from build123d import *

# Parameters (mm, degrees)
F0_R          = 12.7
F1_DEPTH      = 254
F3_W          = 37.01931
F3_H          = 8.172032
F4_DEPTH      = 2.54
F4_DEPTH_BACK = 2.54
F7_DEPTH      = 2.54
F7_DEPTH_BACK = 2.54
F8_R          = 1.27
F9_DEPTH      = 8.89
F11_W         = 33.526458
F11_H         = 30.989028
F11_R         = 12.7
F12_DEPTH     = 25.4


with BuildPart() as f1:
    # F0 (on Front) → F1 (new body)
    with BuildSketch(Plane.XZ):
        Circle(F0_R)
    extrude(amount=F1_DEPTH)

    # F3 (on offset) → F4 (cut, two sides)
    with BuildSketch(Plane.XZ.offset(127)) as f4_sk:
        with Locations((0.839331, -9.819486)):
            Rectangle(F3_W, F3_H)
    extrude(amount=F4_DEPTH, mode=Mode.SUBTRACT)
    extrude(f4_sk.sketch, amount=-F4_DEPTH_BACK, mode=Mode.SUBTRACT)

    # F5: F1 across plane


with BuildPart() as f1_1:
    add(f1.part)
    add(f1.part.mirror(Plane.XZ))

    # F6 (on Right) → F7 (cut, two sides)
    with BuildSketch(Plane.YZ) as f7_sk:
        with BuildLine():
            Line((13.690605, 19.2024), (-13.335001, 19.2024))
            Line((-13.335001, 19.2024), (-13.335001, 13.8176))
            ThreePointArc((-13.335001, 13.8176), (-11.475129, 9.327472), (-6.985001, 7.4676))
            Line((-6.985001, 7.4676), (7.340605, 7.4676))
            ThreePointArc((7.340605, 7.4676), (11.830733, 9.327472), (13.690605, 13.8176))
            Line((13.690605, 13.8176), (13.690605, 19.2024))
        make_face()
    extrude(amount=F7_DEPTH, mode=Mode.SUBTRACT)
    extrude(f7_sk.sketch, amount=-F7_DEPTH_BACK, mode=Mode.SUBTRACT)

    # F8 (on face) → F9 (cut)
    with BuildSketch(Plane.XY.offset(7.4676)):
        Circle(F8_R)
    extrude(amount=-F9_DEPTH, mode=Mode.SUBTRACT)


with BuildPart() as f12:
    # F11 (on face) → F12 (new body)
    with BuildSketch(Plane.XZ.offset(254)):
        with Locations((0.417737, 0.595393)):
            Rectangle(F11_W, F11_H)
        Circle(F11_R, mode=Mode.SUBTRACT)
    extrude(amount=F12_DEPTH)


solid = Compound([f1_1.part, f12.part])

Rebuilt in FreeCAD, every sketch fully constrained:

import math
import FreeCAD as App
import Part
import Sketcher
from FreeCAD import Vector
Q = App.Units.Quantity


def add_polygon(sketch, points):
    """Adds a closed chain of lines whose ends are joined by coincident constraints."""
    first, n = sketch.GeometryCount, len(points)
    for a, b in zip(points, points[1:] + points[:1]):
        sketch.addGeometry(Part.LineSegment(App.Vector(*a, 0), App.Vector(*b, 0)), False)
    for i in range(n):
        sketch.addConstraint(Sketcher.Constraint("Coincident", first + i, 2, first + (i + 1) % n, 1))

doc = App.newDocument("Part")
params = doc.addObject("Spreadsheet::Sheet", "Params")
for row, (alias, value) in enumerate([
    ("sketch1_diameter", "1 in"),
    ("pad1_length", "10 in"),
    ("pocket1_length", "0.1 in"),
    ("pocket1_length2", "0.1 in"),
    ("sketch3_radius", "0.25 in"),
    ("sketch3_height", "0.212 in"),
    ("pocket2_length", "0.1 in"),
    ("pocket2_length2", "0.1 in"),
    ("sketch4_diameter", "0.1 in"),
    ("pocket3_length", "0.35 in"),
    ("sketch5_diameter", "1 in"),
    ("pad2_length", "1 in"),
], start=1):
    params.set(f"A{row}", alias)
    params.set(f"B{row}", "=" + value)
    params.setAlias(f"B{row}", alias)

body = doc.addObject("PartDesign::Body", "Body")

# Sketch on XZ plane
sketch1 = doc.addObject("Sketcher::SketchObject", "Sketch")
body.addObject(sketch1)
sketch1.AttachmentSupport = (doc.XZ_Plane, [""])
sketch1.MapMode = "FlatFace"
sketch1.addGeometry(Part.Circle(Vector(0, 0, 0), Vector(0, 0, 1), 12.7), False)
sketch1.addConstraint(Sketcher.Constraint("Coincident", 0, 3, -1, 1))
sketch1.addConstraint(Sketcher.Constraint("Diameter", 0, Q("1 in")))
sketch1.setExpression("Constraints[1]", "Params.sketch1_diameter")
pad1 = doc.addObject("PartDesign::Pad", "Pad")
body.addObject(pad1)
pad1.Profile = sketch1
pad1.setExpression("Length", "Params.pad1_length")

# Sketch on XZ plane
sketch2 = doc.addObject("Sketcher::SketchObject", "Sketch001")
body.addObject(sketch2)
sketch2.AttachmentSupport = (doc.XZ_Plane, [""])
sketch2.MapMode = "FlatFace"
sketch2.AttachmentOffset = App.Placement(Vector(0, 0, 5 * 25.4), App.Rotation())
add_polygon(sketch2, [(-17.670324, -5.73347), (-17.670324, -13.905502), (19.348986, -13.905502), (19.348986, -5.73347)])  # lines 0-3
sketch2.addConstraint(Sketcher.Constraint("Vertical", 0))
sketch2.addConstraint(Sketcher.Constraint("Horizontal", 1))
sketch2.addConstraint(Sketcher.Constraint("Vertical", 2))
sketch2.addConstraint(Sketcher.Constraint("Horizontal", 3))
sketch2.addConstraint(Sketcher.Constraint("DistanceX", 1, 1, 1, 2, Q("37.01931 mm")))
sketch2.addConstraint(Sketcher.Constraint("DistanceY", 0, 2, 0, 1, Q("8.172032 mm")))
sketch2.addConstraint(Sketcher.Constraint("DistanceY", 2, 2, -1, 1, Q("5.73347 mm")))
sketch2.addConstraint(Sketcher.Constraint("DistanceX", 0, 2, -1, 1, Q("17.670324 mm")))
pocket1 = doc.addObject("PartDesign::Pocket", "Pocket")
body.addObject(pocket1)
pocket1.Profile = sketch2
pocket1.Type = "TwoLengths"
pocket1.setExpression("Length", "Params.pocket1_length")
pocket1.setExpression("Length2", "Params.pocket1_length2")
pocket1.Reversed = True
body2 = doc.addObject("PartDesign::Body", "Body001")
doc.recompute()

body2.BaseFeature = body
doc.recompute()

mirroring = doc.addObject("Part::Mirroring", "Mirroring")
mirroring.Source = body
mirroring.Base = Vector(0, 0, 0)
mirroring.Normal = Vector(0, -1, 0)
body3 = doc.addObject("PartDesign::Body", "Body002")
body3.BaseFeature = mirroring
boolean = doc.addObject("PartDesign::Boolean", "Boolean")
body2.addObject(boolean)
boolean.Type = "Fuse"
boolean.addObjects([body3])
doc.recompute()

# Sketch on YZ plane
sketch3 = doc.addObject("Sketcher::SketchObject", "Sketch002")
body2.addObject(sketch3)
sketch3.AttachmentSupport = (doc.getObject("YZ_Plane001"), [""])
sketch3.MapMode = "FlatFace"
sketch3.addGeometry(Part.LineSegment(Vector(13.690605, 19.2024, 0), Vector(-13.335001, 19.2024, 0)), False)
sketch3.addGeometry(Part.LineSegment(Vector(-13.335001, 19.2024, 0), Vector(-13.335001, 13.8176, 0)), False)
sketch3.addGeometry(Part.ArcOfCircle(Part.Circle(Vector(-6.985001, 13.8176, 0), Vector(0, 0, 1), 6.35), math.radians(-179.999998), math.radians(-90.000002)), False)
sketch3.addGeometry(Part.LineSegment(Vector(-6.985001, 7.4676, 0), Vector(7.340605, 7.4676, 0)), False)
sketch3.addGeometry(Part.ArcOfCircle(Part.Circle(Vector(7.340605, 13.8176, 0), Vector(0, 0, 1), 6.35), math.radians(-89.999998), math.radians(-0.000002)), False)
sketch3.addGeometry(Part.LineSegment(Vector(13.690605, 13.8176, 0), Vector(13.690605, 19.2024, 0)), False)
sketch3.addConstraint(Sketcher.Constraint("Coincident", 0, 2, 1, 1))
sketch3.addConstraint(Sketcher.Constraint("Tangent", 1, 2, 2, 1))
sketch3.addConstraint(Sketcher.Constraint("Tangent", 2, 2, 3, 1))
sketch3.addConstraint(Sketcher.Constraint("Tangent", 3, 2, 4, 1))
sketch3.addConstraint(Sketcher.Constraint("Tangent", 4, 2, 5, 1))
sketch3.addConstraint(Sketcher.Constraint("Coincident", 5, 2, 0, 1))
sketch3.addConstraint(Sketcher.Constraint("Horizontal", 0))
sketch3.addConstraint(Sketcher.Constraint("Vertical", 1))
sketch3.addConstraint(Sketcher.Constraint("Horizontal", 3))
sketch3.addConstraint(Sketcher.Constraint("Vertical", 5))
sketch3.addConstraint(Sketcher.Constraint("Equal", 2, 4))
sketch3.addConstraint(Sketcher.Constraint("Radius", 2, Q("0.25 in")))
sketch3.addConstraint(Sketcher.Constraint("DistanceY", 1, 2, 1, 1, Q("0.212 in")))
sketch3.addConstraint(Sketcher.Constraint("DistanceX", 2, 3, -1, 1, Q("0.275 in")))
sketch3.addConstraint(Sketcher.Constraint("DistanceY", -1, 1, 2, 3, Q("0.544 in")))
sketch3.addConstraint(Sketcher.Constraint("DistanceX", -1, 1, 4, 3, Q("0.2890002 in")))
sketch3.setExpression("Constraints[11]", "Params.sketch3_radius")
sketch3.setExpression("Constraints[12]", "Params.sketch3_height")
pocket2 = doc.addObject("PartDesign::Pocket", "Pocket001")
body2.addObject(pocket2)
pocket2.Profile = sketch3
pocket2.Type = "TwoLengths"
pocket2.setExpression("Length", "Params.pocket2_length")
pocket2.setExpression("Length2", "Params.pocket2_length2")
pocket2.Reversed = True

# Sketch on XY plane
sketch4 = doc.addObject("Sketcher::SketchObject", "Sketch003")
body2.addObject(sketch4)
sketch4.AttachmentSupport = (doc.getObject("XY_Plane001"), [""])
sketch4.MapMode = "FlatFace"
sketch4.AttachmentOffset = App.Placement(Vector(0, 0, 0.294 * 25.4), App.Rotation())
sketch4.addGeometry(Part.Circle(Vector(0, 0, 0), Vector(0, 0, 1), 1.27), False)
sketch4.addConstraint(Sketcher.Constraint("Coincident", 0, 3, -1, 1))
sketch4.addConstraint(Sketcher.Constraint("Diameter", 0, Q("0.1 in")))
sketch4.setExpression("Constraints[1]", "Params.sketch4_diameter")
pocket3 = doc.addObject("PartDesign::Pocket", "Pocket002")
body2.addObject(pocket3)
pocket3.Profile = sketch4
pocket3.setExpression("Length", "Params.pocket3_length")
body4 = doc.addObject("PartDesign::Body", "Body003")

# Sketch on XZ plane
sketch5 = doc.addObject("Sketcher::SketchObject", "Sketch004")
body4.addObject(sketch5)
sketch5.AttachmentSupport = (doc.getObject("XZ_Plane003"), [""])
sketch5.MapMode = "FlatFace"
sketch5.AttachmentOffset = App.Placement(Vector(0, 0, 10 * 25.4), App.Rotation())
add_polygon(sketch5, [(-16.345492, 16.089907), (-16.345492, -14.899121), (17.180966, -14.899121), (17.180966, 16.089907)])  # lines 0-3
sketch5.addGeometry(Part.Circle(Vector(0, 0, 0), Vector(0, 0, 1), 12.7), False)  # 4
sketch5.addConstraint(Sketcher.Constraint("Vertical", 0))
sketch5.addConstraint(Sketcher.Constraint("Horizontal", 1))
sketch5.addConstraint(Sketcher.Constraint("Vertical", 2))
sketch5.addConstraint(Sketcher.Constraint("Horizontal", 3))
sketch5.addConstraint(Sketcher.Constraint("Coincident", 4, 3, -1, 1))
sketch5.addConstraint(Sketcher.Constraint("Diameter", 4, Q("1 in")))
sketch5.addConstraint(Sketcher.Constraint("DistanceX", 1, 1, 1, 2, Q("33.526458 mm")))
sketch5.addConstraint(Sketcher.Constraint("DistanceY", 0, 2, 0, 1, Q("30.989028 mm")))
sketch5.addConstraint(Sketcher.Constraint("DistanceX", 0, 2, -1, 1, Q("16.345492 mm")))
sketch5.addConstraint(Sketcher.Constraint("DistanceY", 0, 2, -1, 1, Q("14.899121 mm")))
sketch5.setExpression("Constraints[9]", "Params.sketch5_diameter")
pad2 = doc.addObject("PartDesign::Pad", "Pad001")
body4.addObject(pad2)
pad2.Profile = sketch5
pad2.setExpression("Length", "Params.pad2_length")
mirroring.Visibility = False

doc.recompute()
